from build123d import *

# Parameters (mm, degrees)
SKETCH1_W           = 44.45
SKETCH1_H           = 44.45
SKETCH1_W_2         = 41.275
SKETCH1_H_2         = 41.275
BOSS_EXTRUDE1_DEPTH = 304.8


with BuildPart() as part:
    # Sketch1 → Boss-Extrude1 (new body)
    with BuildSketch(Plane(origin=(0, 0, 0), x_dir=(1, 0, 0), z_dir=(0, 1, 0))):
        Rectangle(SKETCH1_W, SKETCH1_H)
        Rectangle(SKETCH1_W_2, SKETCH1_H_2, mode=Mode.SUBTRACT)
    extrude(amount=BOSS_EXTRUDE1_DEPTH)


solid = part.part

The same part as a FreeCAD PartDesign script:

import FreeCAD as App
import Part
import Sketcher
Q = App.Units.Quantity

doc = App.newDocument("Part")
body = doc.addObject("PartDesign::Body", "Body")

# Sketch on XZ plane
sketch1 = body.newObject("Sketcher::SketchObject", "Sketch")
sketch1.AttachmentSupport = (doc.getObject("XZ_Plane"), [""])
sketch1.MapMode = "FlatFace"
sketch1.addGeometry(Part.LineSegment(App.Vector(-22, -22, 0), App.Vector(-22, 22, 0)), False)
sketch1.addGeometry(Part.LineSegment(App.Vector(-22, 22, 0), App.Vector(22, 22, 0)), False)
sketch1.addGeometry(Part.LineSegment(App.Vector(22, 22, 0), App.Vector(22, -22, 0)), False)
sketch1.addGeometry(Part.LineSegment(App.Vector(22, -22, 0), App.Vector(-22, -22, 0)), False)
sketch1.addGeometry(Part.LineSegment(App.Vector(21, 21, 0), App.Vector(-21, 21, 0)), False)
sketch1.addGeometry(Part.LineSegment(App.Vector(-21, 21, 0), App.Vector(-21, -21, 0)), False)
sketch1.addGeometry(Part.LineSegment(App.Vector(-21, -21, 0), App.Vector(21, -21, 0)), False)
sketch1.addGeometry(Part.LineSegment(App.Vector(21, -21, 0), App.Vector(21, 21, 0)), False)
sketch1.addConstraint(Sketcher.Constraint("Coincident", 0, 2, 1, 1))
sketch1.addConstraint(Sketcher.Constraint("Coincident", 1, 2, 2, 1))
sketch1.addConstraint(Sketcher.Constraint("Coincident", 2, 2, 3, 1))
sketch1.addConstraint(Sketcher.Constraint("Coincident", 3, 2, 0, 1))
sketch1.addConstraint(Sketcher.Constraint("Coincident", 4, 2, 5, 1))
sketch1.addConstraint(Sketcher.Constraint("Coincident", 5, 2, 6, 1))
sketch1.addConstraint(Sketcher.Constraint("Coincident", 6, 2, 7, 1))
sketch1.addConstraint(Sketcher.Constraint("Coincident", 7, 2, 4, 1))
sketch1.addConstraint(Sketcher.Constraint("Vertical", 0))
sketch1.addConstraint(Sketcher.Constraint("Horizontal", 1))
sketch1.addConstraint(Sketcher.Constraint("Vertical", 2))
sketch1.addConstraint(Sketcher.Constraint("Horizontal", 3))
sketch1.addConstraint(Sketcher.Constraint("Horizontal", 4))
sketch1.addConstraint(Sketcher.Constraint("Vertical", 5))
sketch1.addConstraint(Sketcher.Constraint("Horizontal", 6))
sketch1.addConstraint(Sketcher.Constraint("Vertical", 7))
sketch1.addConstraint(Sketcher.Constraint("Symmetric", 0, 2, 2, 2, -1, 1))
sketch1.addConstraint(Sketcher.Constraint("Symmetric", 4, 2, 6, 2, -1, 1))
sketch1.addConstraint(Sketcher.Constraint("Equal", 3, 0))
sketch1.addConstraint(Sketcher.Constraint("Equal", 6, 5))
sketch1.addConstraint(Sketcher.Constraint("DistanceX", 1, 1, 1, 2, Q("1.75 in")))
sketch1.addConstraint(Sketcher.Constraint("DistanceX", 4, 2, 4, 1, Q("1.625 in")))
pad1 = body.newObject("PartDesign::Pad", "Pad")
pad1.Profile = sketch1
pad1.Length = Q("12 in")
pad1.Reversed = True

doc.recompute()
